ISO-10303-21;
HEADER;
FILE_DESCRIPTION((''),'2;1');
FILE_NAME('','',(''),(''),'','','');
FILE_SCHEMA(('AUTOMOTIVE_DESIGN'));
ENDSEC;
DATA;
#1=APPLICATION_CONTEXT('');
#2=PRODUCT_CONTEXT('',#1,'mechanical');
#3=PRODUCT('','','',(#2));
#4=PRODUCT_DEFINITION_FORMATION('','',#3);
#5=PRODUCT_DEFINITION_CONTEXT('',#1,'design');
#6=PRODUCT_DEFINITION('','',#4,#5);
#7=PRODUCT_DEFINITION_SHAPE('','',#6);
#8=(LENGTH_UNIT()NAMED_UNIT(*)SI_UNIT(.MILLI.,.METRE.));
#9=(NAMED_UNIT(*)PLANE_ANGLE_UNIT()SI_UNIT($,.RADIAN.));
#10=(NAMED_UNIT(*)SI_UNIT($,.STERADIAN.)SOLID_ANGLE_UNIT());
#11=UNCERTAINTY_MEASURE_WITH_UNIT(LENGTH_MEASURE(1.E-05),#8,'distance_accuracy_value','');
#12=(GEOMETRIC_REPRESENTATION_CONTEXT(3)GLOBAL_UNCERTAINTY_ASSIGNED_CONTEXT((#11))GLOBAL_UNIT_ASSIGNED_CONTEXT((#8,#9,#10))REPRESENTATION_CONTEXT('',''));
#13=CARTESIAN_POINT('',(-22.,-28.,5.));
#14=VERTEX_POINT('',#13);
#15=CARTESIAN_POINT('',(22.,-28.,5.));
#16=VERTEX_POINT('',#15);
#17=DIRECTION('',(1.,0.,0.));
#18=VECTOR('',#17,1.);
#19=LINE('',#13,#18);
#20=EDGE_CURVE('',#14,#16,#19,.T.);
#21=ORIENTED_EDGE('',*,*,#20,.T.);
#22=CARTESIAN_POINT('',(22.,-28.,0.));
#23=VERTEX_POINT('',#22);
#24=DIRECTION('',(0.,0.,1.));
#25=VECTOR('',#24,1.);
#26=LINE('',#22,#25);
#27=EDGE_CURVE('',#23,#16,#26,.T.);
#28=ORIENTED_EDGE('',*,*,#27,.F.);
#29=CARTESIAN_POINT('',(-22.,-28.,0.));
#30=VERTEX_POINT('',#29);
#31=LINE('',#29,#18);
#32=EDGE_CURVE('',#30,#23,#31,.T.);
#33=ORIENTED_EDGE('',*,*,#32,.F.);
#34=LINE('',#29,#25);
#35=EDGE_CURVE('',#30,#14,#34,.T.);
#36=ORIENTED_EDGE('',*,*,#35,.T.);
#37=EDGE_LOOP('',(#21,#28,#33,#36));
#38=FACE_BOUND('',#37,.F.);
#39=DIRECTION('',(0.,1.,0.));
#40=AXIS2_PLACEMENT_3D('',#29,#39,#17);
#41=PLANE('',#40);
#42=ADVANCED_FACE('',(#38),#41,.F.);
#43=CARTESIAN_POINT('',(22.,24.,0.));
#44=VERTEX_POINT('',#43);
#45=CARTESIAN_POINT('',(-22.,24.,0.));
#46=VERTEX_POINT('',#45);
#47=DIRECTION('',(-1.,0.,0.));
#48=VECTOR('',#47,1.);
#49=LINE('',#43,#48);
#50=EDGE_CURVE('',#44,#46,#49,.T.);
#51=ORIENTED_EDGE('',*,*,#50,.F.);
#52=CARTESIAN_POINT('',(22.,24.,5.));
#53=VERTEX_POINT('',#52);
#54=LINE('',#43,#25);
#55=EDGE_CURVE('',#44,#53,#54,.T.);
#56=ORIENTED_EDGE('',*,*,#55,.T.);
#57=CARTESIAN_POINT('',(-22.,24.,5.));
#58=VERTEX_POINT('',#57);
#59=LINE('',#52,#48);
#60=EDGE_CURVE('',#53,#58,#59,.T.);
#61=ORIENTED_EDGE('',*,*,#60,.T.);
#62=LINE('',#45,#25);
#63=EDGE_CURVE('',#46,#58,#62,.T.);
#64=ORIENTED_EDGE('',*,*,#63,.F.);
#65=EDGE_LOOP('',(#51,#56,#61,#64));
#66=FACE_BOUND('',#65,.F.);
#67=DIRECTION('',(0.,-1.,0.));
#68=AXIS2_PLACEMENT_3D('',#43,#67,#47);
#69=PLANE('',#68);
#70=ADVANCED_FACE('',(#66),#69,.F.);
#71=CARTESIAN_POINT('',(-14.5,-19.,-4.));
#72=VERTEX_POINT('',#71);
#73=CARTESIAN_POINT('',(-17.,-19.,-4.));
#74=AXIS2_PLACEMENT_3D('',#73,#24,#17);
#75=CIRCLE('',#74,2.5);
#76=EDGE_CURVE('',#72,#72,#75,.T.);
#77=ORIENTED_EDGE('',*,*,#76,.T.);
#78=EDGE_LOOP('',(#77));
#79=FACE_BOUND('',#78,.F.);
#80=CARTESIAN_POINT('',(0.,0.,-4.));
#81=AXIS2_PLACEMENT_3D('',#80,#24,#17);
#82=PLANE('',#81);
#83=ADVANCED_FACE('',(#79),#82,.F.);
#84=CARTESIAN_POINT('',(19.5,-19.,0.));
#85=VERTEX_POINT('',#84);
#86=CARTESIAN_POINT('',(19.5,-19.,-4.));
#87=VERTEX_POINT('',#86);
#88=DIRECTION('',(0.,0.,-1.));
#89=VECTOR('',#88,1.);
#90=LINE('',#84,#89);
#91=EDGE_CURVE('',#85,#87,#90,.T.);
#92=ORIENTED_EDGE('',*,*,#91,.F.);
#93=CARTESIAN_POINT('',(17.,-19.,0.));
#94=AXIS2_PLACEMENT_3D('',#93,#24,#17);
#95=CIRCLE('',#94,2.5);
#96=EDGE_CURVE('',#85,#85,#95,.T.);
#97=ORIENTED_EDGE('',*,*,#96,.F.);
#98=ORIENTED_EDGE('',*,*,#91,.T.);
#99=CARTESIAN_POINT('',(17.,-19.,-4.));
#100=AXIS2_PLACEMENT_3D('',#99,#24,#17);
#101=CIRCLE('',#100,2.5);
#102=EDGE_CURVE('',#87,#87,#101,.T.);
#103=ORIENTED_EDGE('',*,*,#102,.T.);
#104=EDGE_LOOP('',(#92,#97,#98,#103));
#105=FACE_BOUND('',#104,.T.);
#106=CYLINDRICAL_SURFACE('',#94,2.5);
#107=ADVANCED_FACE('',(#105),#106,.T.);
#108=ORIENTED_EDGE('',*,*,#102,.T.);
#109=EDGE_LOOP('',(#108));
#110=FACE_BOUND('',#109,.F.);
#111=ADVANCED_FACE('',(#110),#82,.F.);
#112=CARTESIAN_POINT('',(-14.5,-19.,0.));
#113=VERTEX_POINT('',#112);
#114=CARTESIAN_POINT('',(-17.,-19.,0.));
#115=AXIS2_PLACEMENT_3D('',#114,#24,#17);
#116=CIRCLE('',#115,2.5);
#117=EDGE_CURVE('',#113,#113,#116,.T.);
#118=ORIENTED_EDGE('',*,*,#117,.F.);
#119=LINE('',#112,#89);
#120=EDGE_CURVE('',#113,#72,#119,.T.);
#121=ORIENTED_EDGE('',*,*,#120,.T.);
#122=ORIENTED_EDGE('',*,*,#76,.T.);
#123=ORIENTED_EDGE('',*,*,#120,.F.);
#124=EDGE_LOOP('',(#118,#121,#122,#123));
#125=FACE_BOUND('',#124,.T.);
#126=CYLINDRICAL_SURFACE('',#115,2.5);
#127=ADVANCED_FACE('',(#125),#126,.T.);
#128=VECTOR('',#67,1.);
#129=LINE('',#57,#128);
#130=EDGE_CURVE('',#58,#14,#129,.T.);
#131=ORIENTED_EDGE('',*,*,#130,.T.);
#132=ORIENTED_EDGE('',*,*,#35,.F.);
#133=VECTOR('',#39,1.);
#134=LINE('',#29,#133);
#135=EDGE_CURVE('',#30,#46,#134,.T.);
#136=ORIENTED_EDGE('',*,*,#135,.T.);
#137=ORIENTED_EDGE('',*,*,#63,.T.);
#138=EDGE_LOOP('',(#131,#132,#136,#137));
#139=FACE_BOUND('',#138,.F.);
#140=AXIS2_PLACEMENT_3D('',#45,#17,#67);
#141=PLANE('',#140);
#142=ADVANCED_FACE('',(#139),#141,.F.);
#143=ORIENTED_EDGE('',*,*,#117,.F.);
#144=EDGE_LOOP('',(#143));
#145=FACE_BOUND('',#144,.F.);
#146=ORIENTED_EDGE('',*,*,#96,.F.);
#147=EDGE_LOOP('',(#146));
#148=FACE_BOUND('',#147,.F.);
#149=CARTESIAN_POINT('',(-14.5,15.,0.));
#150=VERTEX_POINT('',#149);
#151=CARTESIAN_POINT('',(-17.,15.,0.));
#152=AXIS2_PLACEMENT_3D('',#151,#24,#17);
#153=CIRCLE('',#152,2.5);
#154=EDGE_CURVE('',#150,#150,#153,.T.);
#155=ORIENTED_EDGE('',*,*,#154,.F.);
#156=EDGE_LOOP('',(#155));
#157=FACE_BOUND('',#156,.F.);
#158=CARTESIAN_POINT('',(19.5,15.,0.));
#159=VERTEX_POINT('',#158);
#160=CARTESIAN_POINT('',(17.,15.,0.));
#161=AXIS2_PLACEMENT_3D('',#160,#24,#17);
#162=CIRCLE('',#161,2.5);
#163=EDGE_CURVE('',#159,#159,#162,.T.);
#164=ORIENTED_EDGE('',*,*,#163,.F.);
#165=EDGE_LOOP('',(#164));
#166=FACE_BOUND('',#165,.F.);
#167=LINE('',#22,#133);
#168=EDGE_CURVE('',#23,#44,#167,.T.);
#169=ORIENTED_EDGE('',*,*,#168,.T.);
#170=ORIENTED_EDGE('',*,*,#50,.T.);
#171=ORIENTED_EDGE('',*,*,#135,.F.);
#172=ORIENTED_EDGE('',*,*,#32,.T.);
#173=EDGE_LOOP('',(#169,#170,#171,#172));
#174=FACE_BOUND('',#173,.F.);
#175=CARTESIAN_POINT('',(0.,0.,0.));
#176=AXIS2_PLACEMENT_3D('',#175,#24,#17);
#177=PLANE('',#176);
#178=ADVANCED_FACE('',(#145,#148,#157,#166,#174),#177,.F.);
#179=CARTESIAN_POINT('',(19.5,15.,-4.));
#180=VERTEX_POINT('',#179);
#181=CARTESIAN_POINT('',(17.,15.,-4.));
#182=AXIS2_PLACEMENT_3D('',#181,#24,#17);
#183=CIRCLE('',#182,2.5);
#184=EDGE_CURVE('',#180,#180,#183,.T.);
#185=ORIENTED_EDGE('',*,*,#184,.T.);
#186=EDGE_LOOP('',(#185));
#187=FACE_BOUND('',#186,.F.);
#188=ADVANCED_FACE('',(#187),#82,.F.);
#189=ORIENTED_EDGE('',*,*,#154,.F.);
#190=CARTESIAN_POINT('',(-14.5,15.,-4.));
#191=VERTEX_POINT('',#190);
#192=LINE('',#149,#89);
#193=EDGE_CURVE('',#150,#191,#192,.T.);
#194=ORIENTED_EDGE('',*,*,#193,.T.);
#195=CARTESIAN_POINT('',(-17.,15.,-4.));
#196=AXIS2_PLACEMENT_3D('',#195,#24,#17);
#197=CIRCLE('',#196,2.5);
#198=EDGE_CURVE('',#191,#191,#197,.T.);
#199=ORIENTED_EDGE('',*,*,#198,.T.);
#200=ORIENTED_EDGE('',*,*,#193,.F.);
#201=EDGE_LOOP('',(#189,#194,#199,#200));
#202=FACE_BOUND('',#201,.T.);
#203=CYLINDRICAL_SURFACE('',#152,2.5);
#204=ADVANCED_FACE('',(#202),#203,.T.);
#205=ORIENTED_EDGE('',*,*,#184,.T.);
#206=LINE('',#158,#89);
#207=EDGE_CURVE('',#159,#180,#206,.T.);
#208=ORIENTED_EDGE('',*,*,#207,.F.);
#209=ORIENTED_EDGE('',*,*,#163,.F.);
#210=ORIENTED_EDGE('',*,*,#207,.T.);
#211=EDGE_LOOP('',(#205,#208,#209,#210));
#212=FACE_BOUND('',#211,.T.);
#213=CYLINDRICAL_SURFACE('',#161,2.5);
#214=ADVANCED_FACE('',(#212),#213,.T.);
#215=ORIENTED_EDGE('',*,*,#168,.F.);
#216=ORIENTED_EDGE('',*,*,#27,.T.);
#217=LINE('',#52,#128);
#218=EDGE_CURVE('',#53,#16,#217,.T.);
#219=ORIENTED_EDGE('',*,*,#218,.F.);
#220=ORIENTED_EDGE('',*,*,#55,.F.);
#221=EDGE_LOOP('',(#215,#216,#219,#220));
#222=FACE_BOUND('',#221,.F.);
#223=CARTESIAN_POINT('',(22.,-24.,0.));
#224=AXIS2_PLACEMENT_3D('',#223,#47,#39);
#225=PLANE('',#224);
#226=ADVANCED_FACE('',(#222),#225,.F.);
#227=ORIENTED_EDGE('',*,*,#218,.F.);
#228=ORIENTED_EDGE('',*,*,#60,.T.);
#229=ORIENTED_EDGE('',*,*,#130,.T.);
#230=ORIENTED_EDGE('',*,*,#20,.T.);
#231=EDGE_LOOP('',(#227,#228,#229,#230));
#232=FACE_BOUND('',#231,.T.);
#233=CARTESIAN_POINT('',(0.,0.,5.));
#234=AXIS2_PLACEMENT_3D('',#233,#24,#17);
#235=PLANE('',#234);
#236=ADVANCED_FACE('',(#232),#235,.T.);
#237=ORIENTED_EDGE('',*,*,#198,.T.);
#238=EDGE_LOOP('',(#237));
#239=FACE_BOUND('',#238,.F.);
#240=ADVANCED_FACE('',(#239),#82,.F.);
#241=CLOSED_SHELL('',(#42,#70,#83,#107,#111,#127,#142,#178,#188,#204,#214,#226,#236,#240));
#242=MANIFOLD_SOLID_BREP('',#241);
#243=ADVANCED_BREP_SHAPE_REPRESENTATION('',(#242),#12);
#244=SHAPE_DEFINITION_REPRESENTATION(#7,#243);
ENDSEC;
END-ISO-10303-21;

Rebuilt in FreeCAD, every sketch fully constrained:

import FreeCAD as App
import Part
import Sketcher

V = App.Vector
Q = App.Units.Quantity

doc = App.newDocument("Part")
params = doc.addObject("Spreadsheet::Sheet", "Params")
for row, (alias, value) in enumerate([
    ("sketch1_width", "44 mm"),
    ("sketch1_height", "52 mm"),
    ("pad1_length", "5 mm"),
    ("sketch2_diameter", "5 mm"),
    ("pad2_length", "4 mm"),
], start=1):
    params.set(f"A{row}", alias)
    params.set(f"B{row}", "=" + value)
    params.setAlias(f"B{row}", alias)

body = doc.addObject("PartDesign::Body", "Body")

# Sketch on XY plane
sketch1 = doc.addObject("Sketcher::SketchObject", "Sketch")
body.addObject(sketch1)
sketch1.AttachmentSupport = (doc.XY_Plane, [""])
sketch1.MapMode = "FlatFace"
sketch1.addGeometry([
    Part.LineSegment(V(22, 24, 0), V(-22, 24, 0)),
    Part.LineSegment(V(-22, 24, 0), V(-22, -28, 0)),
    Part.LineSegment(V(-22, -28, 0), V(22, -28, 0)),
    Part.LineSegment(V(22, -28, 0), V(22, 24, 0)),
], False)
sketch1.addConstraint([
    Sketcher.Constraint("Coincident", 0, 2, 1, 1),
    Sketcher.Constraint("Coincident", 1, 2, 2, 1),
    Sketcher.Constraint("Coincident", 2, 2, 3, 1),
    Sketcher.Constraint("Coincident", 3, 2, 0, 1),
    Sketcher.Constraint("Horizontal", 0),
    Sketcher.Constraint("Vertical", 1),
    Sketcher.Constraint("Horizontal", 2),
    Sketcher.Constraint("Vertical", 3),
    Sketcher.Constraint("DistanceX", 0, 2, 0, 1, Q("44 mm")),
    Sketcher.Constraint("DistanceY", 1, 2, 1, 1, Q("52 mm")),
    Sketcher.Constraint("DistanceX", 0, 2, -1, 1, Q("22 mm")),
    Sketcher.Constraint("DistanceY", -1, 1, 0, 2, Q("24 mm")),
])
sketch1.setExpression("Constraints[8]", "Params.sketch1_width")
sketch1.setExpression("Constraints[9]", "Params.sketch1_height")
pad1 = doc.addObject("PartDesign::Pad", "Pad")
body.addObject(pad1)
pad1.Profile = sketch1
pad1.setExpression("Length", "Params.pad1_length")

# Sketch on XY plane
sketch2 = doc.addObject("Sketcher::SketchObject", "Sketch001")
body.addObject(sketch2)
sketch2.AttachmentSupport = (doc.XY_Plane, [""])
sketch2.MapMode = "FlatFace"
sketch2.addGeometry([
    Part.Circle(V(-17, 15, 0), V(0, 0, 1), 2.5),
    Part.Circle(V(17, 15, 0), V(0, 0, 1), 2.5),
    Part.Circle(V(17, -19, 0), V(0, 0, 1), 2.5),
    Part.Circle(V(-17, -19, 0), V(0, 0, 1), 2.5),
], False)
sketch2.addConstraint([
    Sketcher.Constraint("Equal", 0, 1),
    Sketcher.Constraint("Equal", 1, 2),
    Sketcher.Constraint("Equal", 2, 3),
    Sketcher.Constraint("Symmetric", 0, 3, 1, 3, -2),
    Sketcher.Constraint("Symmetric", 2, 3, 3, 3, -2),
    Sketcher.Constraint("Vertical", 1, 3, 2, 3),
    Sketcher.Constraint("Diameter", 0, Q("5 mm")),
    Sketcher.Constraint("DistanceX", 0, 3, 1, 3, Q("34 mm")),
    Sketcher.Constraint("DistanceY", 2, 3, 1, 3, Q("34 mm")),
    Sketcher.Constraint("DistanceY", -1, 1, 0, 3, Q("15 mm")),
])
sketch2.setExpression("Constraints[6]", "Params.sketch2_diameter")
pad2 = doc.addObject("PartDesign::Pad", "Pad001")
body.addObject(pad2)
pad2.Profile = sketch2
pad2.setExpression("Length", "Params.pad2_length")
pad2.Reversed = True

doc.recompute()
